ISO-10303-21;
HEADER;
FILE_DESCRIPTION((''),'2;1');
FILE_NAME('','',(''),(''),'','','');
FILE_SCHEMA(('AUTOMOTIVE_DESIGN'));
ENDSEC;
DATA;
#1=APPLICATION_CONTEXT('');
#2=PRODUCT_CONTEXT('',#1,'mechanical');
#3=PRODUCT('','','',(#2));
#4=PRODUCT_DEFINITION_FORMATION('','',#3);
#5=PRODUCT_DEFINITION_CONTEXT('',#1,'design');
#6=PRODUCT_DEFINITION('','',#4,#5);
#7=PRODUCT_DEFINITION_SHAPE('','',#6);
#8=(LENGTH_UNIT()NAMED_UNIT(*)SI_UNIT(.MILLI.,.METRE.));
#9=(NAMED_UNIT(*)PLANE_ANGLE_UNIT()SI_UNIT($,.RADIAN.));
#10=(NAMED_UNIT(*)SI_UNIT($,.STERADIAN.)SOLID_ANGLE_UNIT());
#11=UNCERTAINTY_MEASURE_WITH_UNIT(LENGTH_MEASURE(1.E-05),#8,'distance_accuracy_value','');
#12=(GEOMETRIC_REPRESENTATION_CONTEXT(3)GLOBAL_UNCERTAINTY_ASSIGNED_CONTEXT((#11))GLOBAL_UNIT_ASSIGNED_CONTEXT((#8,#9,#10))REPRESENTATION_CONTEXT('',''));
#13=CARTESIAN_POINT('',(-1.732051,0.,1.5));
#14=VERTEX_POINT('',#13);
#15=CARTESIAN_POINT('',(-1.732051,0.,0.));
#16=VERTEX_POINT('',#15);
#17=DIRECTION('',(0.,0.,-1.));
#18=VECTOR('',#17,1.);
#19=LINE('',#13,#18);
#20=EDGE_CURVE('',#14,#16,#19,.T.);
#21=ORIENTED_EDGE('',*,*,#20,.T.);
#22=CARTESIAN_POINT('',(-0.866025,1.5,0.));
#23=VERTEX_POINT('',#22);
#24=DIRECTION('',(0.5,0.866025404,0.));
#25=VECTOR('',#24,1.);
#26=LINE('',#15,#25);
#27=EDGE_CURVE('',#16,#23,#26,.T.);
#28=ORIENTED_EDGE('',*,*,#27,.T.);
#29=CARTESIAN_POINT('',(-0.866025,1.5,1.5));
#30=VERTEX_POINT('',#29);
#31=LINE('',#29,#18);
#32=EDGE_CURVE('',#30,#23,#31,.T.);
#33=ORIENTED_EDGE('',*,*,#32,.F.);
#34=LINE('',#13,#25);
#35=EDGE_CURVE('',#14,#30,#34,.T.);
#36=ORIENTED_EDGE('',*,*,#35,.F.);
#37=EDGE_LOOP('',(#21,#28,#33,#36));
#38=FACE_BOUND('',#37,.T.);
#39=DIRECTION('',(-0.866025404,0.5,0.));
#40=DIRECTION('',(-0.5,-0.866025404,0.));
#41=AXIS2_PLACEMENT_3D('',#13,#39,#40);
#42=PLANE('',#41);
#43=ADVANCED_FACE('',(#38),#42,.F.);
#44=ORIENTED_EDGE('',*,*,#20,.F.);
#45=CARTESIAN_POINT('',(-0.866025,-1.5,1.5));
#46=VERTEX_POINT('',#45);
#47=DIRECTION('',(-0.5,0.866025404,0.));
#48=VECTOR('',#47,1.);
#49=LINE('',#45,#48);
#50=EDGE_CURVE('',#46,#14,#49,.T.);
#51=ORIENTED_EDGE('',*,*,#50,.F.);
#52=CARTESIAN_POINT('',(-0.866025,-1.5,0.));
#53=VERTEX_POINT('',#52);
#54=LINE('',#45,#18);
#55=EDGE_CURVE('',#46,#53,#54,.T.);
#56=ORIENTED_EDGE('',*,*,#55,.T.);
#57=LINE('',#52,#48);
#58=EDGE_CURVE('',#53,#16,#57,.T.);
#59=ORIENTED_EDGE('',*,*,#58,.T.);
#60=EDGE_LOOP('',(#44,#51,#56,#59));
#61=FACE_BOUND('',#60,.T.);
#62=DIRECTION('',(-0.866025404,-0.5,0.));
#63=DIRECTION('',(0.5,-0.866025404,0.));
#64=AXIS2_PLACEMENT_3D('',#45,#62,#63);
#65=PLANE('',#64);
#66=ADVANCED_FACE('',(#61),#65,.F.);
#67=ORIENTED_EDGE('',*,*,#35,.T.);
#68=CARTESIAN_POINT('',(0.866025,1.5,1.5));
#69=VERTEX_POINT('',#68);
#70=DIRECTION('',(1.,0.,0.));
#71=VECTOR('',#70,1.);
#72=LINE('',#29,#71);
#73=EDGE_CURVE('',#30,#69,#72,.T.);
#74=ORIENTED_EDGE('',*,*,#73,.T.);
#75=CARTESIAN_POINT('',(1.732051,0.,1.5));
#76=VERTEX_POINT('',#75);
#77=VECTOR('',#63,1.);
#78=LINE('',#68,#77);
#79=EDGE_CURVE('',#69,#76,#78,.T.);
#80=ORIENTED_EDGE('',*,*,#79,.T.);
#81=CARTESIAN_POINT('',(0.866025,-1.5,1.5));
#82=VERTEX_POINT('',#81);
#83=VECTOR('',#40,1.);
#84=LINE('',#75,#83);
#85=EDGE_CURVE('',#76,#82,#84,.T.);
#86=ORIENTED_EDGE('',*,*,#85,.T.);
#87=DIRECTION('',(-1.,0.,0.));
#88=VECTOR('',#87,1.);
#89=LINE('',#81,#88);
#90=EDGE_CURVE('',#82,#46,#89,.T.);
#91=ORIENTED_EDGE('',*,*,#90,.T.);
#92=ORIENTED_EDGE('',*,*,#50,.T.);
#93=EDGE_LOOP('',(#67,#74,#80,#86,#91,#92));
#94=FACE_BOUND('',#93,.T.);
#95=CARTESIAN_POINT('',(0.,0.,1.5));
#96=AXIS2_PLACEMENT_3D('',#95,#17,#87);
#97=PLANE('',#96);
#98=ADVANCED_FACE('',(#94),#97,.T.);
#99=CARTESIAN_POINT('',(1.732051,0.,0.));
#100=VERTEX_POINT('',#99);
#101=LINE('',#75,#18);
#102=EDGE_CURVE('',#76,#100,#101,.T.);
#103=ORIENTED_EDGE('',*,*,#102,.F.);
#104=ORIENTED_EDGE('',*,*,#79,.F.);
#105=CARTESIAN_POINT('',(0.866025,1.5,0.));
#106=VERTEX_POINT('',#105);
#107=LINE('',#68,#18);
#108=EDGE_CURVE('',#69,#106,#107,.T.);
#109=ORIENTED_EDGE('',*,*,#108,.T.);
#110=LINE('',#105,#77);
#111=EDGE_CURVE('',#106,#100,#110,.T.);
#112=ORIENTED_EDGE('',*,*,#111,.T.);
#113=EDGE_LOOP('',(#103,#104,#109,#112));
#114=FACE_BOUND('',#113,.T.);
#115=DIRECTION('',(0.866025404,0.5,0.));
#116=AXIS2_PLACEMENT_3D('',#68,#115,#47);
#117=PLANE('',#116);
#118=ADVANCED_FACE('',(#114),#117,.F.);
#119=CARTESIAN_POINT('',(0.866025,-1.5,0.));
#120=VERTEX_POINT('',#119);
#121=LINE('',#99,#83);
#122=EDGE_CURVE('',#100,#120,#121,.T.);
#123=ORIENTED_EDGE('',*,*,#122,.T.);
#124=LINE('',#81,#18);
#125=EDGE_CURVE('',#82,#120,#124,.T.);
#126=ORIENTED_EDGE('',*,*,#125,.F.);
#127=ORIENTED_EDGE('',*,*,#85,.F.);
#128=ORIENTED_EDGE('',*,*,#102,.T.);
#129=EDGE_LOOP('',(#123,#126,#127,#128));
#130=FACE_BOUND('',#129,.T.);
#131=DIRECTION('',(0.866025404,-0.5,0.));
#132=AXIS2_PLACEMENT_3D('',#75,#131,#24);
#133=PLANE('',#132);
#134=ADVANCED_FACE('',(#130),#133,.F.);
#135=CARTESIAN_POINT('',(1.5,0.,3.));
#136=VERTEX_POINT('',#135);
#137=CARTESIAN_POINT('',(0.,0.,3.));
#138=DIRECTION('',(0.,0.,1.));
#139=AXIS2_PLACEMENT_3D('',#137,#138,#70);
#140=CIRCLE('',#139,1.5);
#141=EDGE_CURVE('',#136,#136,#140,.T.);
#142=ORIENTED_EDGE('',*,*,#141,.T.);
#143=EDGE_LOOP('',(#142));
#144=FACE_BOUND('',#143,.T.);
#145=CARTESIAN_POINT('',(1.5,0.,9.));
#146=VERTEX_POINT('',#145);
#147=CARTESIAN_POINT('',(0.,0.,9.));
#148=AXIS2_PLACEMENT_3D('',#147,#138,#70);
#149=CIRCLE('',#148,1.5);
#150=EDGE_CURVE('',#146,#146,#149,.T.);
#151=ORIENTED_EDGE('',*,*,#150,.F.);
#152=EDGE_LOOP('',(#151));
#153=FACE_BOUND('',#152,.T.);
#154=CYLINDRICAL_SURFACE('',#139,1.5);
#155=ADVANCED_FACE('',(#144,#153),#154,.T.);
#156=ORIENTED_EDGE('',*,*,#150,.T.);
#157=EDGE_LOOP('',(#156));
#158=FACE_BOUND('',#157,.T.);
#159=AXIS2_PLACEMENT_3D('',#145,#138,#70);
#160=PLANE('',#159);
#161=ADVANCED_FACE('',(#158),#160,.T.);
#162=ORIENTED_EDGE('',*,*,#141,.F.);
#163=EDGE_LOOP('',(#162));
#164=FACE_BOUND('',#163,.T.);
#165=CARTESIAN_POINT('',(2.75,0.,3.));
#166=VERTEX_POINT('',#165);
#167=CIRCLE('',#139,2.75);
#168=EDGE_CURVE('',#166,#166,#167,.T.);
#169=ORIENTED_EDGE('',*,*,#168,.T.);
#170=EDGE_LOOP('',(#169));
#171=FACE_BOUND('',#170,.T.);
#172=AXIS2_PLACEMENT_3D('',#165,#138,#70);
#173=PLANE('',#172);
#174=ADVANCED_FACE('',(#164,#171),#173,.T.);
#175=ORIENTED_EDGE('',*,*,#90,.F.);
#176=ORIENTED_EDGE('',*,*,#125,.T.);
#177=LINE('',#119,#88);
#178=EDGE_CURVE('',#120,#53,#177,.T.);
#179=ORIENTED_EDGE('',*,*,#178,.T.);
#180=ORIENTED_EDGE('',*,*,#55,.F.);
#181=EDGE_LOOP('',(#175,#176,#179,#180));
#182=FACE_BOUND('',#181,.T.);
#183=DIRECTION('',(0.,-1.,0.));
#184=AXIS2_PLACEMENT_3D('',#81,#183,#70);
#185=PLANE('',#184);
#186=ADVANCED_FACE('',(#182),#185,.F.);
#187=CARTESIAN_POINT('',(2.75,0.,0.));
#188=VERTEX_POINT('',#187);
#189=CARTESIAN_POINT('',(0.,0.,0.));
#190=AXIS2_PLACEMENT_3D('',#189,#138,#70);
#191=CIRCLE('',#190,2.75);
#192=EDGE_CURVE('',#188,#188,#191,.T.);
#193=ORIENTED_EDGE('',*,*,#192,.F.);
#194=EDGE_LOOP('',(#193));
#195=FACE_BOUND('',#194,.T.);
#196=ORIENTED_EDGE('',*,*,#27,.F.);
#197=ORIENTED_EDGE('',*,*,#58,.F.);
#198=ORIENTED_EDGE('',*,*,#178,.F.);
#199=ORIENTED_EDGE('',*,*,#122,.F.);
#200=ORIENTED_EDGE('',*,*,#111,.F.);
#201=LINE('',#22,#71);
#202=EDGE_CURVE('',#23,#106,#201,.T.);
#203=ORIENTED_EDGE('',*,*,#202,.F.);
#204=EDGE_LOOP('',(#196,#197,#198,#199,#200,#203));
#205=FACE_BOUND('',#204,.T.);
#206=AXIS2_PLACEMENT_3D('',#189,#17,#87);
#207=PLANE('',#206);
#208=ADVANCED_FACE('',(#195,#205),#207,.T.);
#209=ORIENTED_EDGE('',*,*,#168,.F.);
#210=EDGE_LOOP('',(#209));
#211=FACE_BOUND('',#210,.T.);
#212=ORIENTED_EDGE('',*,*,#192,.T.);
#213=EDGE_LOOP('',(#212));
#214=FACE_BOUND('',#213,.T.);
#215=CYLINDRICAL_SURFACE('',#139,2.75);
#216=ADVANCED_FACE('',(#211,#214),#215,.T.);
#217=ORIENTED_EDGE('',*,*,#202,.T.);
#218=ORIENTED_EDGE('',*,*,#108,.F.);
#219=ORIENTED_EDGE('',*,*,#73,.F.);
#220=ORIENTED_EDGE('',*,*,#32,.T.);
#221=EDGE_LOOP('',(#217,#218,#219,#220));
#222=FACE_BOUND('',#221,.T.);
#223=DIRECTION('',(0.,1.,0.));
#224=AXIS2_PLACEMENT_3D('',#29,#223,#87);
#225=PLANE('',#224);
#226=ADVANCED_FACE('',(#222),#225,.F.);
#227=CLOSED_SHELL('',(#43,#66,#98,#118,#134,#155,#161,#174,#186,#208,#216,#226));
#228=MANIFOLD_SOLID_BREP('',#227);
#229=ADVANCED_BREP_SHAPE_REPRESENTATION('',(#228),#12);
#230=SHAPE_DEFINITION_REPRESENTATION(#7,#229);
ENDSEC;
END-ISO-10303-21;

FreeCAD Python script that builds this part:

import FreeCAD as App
import Part
import Sketcher
from FreeCAD import Vector
Q = App.Units.Quantity

doc = App.newDocument("Part")
params = doc.addObject("Spreadsheet::Sheet", "Params")
for row, (alias, value) in enumerate([
    ("sketch1_height", "9 mm"),
    ("sketch1_height2", "6 mm"),
    ("sketch1_width", "1.5 mm"),
    ("sketch1_width2", "2.75 mm"),
    ("revolution_angle", "360 deg"),
    ("pocket1_length", "1.5 mm"),
], start=1):
    params.set(f"A{row}", alias)
    params.set(f"B{row}", "=" + value)
    params.setAlias(f"B{row}", alias)

body = doc.addObject("PartDesign::Body", "Body")

# Sketch on XZ plane
sketch1 = doc.addObject("Sketcher::SketchObject", "Sketch")
body.addObject(sketch1)
sketch1.AttachmentSupport = (doc.XZ_Plane, [""])
sketch1.MapMode = "FlatFace"
sketch1.addGeometry([
    Part.LineSegment(Vector(2.8, 0, 0), Vector(0, 0, 0)),  # 0
    Part.LineSegment(Vector(0, 0, 0), Vector(0, 9, 0)),  # 1
    Part.LineSegment(Vector(0, 9, 0), Vector(1.5, 9, 0)),  # 2
    Part.LineSegment(Vector(1.5, 9, 0), Vector(1.5, 3, 0)),  # 3
    Part.LineSegment(Vector(1.5, 3, 0), Vector(2.8, 3, 0)),  # 4
    Part.LineSegment(Vector(2.8, 3, 0), Vector(2.8, 0, 0)),  # 5
], False)
sketch1.addConstraint([
    Sketcher.Constraint("Coincident", 0, 2, 1, 1),
    Sketcher.Constraint("Coincident", 1, 2, 2, 1),
    Sketcher.Constraint("Coincident", 2, 2, 3, 1),
    Sketcher.Constraint("Coincident", 3, 2, 4, 1),
    Sketcher.Constraint("Coincident", 4, 2, 5, 1),
    Sketcher.Constraint("Coincident", 5, 2, 0, 1),
    Sketcher.Constraint("Horizontal", 0),
    Sketcher.Constraint("Vertical", 1),
    Sketcher.Constraint("Horizontal", 2),
    Sketcher.Constraint("Vertical", 3),
    Sketcher.Constraint("Horizontal", 4),
    Sketcher.Constraint("Vertical", 5),
    Sketcher.Constraint("Coincident", 0, 2, -1, 1),
    Sketcher.Constraint("DistanceY", 1, 1, 1, 2, 9.0),
    Sketcher.Constraint("DistanceY", 3, 2, 3, 1, 6.0),
    Sketcher.Constraint("DistanceX", 2, 1, 2, 2, 1.5),
    Sketcher.Constraint("DistanceX", 0, 2, 0, 1, 2.75),
])
sketch1.setExpression("Constraints[13]", "Params.sketch1_height")
sketch1.setExpression("Constraints[14]", "Params.sketch1_height2")
sketch1.setExpression("Constraints[15]", "Params.sketch1_width")
sketch1.setExpression("Constraints[16]", "Params.sketch1_width2")
revolution = doc.addObject("PartDesign::Revolution", "Revolution")
body.addObject(revolution)
revolution.Profile = sketch1
revolution.ReferenceAxis = (sketch1, ["V_Axis"])
revolution.setExpression("Angle", "Params.revolution_angle")

# Sketch on XY plane
sketch2 = doc.addObject("Sketcher::SketchObject", "Sketch001")
body.addObject(sketch2)
sketch2.AttachmentSupport = (doc.XY_Plane, [""])
sketch2.MapMode = "FlatFace"
sketch2.addGeometry([
    Part.LineSegment(Vector(-1.7, 0, 0), Vector(-0.9, 1.5, 0)),  # 0
    Part.LineSegment(Vector(-0.9, 1.5, 0), Vector(0.9, 1.5, 0)),  # 1
    Part.LineSegment(Vector(0.9, 1.5, 0), Vector(1.7, 0, 0)),  # 2
    Part.LineSegment(Vector(1.7, 0, 0), Vector(0.9, -1.5, 0)),  # 3
    Part.LineSegment(Vector(0.9, -1.5, 0), Vector(-0.9, -1.5, 0)),  # 4
    Part.LineSegment(Vector(-0.9, -1.5, 0), Vector(-1.7, 0, 0)),  # 5
], False)
sketch2.addConstraint([
    Sketcher.Constraint("Coincident", 0, 2, 1, 1),
    Sketcher.Constraint("Coincident", 1, 2, 2, 1),
    Sketcher.Constraint("Coincident", 2, 2, 3, 1),
    Sketcher.Constraint("Coincident", 3, 2, 4, 1),
    Sketcher.Constraint("Coincident", 4, 2, 5, 1),
    Sketcher.Constraint("Coincident", 5, 2, 0, 1),
    Sketcher.Constraint("Horizontal", 1),
    Sketcher.Constraint("Horizontal", 4),
    Sketcher.Constraint("Symmetric", 0, 2, 3, 2, -1, 1),
    Sketcher.Constraint("Symmetric", 2, 2, 5, 2, -1, 1),
    Sketcher.Constraint("PointOnObject", 2, 2, -1),
    Sketcher.Constraint("Parallel", 2, 5),
    Sketcher.Constraint("Vertical", 1, 2, 3, 2),
    Sketcher.Constraint("Angle", 0, Q("60 deg")),
    Sketcher.Constraint("DistanceY", 3, 2, 1, 2, 3.0),
    Sketcher.Constraint("DistanceX", 1, 1, 1, 2, 1.732051),
])
pocket1 = doc.addObject("PartDesign::Pocket", "Pocket")
body.addObject(pocket1)
pocket1.Profile = sketch2
pocket1.setExpression("Length", "Params.pocket1_length")
pocket1.Reversed = True

doc.recompute()
